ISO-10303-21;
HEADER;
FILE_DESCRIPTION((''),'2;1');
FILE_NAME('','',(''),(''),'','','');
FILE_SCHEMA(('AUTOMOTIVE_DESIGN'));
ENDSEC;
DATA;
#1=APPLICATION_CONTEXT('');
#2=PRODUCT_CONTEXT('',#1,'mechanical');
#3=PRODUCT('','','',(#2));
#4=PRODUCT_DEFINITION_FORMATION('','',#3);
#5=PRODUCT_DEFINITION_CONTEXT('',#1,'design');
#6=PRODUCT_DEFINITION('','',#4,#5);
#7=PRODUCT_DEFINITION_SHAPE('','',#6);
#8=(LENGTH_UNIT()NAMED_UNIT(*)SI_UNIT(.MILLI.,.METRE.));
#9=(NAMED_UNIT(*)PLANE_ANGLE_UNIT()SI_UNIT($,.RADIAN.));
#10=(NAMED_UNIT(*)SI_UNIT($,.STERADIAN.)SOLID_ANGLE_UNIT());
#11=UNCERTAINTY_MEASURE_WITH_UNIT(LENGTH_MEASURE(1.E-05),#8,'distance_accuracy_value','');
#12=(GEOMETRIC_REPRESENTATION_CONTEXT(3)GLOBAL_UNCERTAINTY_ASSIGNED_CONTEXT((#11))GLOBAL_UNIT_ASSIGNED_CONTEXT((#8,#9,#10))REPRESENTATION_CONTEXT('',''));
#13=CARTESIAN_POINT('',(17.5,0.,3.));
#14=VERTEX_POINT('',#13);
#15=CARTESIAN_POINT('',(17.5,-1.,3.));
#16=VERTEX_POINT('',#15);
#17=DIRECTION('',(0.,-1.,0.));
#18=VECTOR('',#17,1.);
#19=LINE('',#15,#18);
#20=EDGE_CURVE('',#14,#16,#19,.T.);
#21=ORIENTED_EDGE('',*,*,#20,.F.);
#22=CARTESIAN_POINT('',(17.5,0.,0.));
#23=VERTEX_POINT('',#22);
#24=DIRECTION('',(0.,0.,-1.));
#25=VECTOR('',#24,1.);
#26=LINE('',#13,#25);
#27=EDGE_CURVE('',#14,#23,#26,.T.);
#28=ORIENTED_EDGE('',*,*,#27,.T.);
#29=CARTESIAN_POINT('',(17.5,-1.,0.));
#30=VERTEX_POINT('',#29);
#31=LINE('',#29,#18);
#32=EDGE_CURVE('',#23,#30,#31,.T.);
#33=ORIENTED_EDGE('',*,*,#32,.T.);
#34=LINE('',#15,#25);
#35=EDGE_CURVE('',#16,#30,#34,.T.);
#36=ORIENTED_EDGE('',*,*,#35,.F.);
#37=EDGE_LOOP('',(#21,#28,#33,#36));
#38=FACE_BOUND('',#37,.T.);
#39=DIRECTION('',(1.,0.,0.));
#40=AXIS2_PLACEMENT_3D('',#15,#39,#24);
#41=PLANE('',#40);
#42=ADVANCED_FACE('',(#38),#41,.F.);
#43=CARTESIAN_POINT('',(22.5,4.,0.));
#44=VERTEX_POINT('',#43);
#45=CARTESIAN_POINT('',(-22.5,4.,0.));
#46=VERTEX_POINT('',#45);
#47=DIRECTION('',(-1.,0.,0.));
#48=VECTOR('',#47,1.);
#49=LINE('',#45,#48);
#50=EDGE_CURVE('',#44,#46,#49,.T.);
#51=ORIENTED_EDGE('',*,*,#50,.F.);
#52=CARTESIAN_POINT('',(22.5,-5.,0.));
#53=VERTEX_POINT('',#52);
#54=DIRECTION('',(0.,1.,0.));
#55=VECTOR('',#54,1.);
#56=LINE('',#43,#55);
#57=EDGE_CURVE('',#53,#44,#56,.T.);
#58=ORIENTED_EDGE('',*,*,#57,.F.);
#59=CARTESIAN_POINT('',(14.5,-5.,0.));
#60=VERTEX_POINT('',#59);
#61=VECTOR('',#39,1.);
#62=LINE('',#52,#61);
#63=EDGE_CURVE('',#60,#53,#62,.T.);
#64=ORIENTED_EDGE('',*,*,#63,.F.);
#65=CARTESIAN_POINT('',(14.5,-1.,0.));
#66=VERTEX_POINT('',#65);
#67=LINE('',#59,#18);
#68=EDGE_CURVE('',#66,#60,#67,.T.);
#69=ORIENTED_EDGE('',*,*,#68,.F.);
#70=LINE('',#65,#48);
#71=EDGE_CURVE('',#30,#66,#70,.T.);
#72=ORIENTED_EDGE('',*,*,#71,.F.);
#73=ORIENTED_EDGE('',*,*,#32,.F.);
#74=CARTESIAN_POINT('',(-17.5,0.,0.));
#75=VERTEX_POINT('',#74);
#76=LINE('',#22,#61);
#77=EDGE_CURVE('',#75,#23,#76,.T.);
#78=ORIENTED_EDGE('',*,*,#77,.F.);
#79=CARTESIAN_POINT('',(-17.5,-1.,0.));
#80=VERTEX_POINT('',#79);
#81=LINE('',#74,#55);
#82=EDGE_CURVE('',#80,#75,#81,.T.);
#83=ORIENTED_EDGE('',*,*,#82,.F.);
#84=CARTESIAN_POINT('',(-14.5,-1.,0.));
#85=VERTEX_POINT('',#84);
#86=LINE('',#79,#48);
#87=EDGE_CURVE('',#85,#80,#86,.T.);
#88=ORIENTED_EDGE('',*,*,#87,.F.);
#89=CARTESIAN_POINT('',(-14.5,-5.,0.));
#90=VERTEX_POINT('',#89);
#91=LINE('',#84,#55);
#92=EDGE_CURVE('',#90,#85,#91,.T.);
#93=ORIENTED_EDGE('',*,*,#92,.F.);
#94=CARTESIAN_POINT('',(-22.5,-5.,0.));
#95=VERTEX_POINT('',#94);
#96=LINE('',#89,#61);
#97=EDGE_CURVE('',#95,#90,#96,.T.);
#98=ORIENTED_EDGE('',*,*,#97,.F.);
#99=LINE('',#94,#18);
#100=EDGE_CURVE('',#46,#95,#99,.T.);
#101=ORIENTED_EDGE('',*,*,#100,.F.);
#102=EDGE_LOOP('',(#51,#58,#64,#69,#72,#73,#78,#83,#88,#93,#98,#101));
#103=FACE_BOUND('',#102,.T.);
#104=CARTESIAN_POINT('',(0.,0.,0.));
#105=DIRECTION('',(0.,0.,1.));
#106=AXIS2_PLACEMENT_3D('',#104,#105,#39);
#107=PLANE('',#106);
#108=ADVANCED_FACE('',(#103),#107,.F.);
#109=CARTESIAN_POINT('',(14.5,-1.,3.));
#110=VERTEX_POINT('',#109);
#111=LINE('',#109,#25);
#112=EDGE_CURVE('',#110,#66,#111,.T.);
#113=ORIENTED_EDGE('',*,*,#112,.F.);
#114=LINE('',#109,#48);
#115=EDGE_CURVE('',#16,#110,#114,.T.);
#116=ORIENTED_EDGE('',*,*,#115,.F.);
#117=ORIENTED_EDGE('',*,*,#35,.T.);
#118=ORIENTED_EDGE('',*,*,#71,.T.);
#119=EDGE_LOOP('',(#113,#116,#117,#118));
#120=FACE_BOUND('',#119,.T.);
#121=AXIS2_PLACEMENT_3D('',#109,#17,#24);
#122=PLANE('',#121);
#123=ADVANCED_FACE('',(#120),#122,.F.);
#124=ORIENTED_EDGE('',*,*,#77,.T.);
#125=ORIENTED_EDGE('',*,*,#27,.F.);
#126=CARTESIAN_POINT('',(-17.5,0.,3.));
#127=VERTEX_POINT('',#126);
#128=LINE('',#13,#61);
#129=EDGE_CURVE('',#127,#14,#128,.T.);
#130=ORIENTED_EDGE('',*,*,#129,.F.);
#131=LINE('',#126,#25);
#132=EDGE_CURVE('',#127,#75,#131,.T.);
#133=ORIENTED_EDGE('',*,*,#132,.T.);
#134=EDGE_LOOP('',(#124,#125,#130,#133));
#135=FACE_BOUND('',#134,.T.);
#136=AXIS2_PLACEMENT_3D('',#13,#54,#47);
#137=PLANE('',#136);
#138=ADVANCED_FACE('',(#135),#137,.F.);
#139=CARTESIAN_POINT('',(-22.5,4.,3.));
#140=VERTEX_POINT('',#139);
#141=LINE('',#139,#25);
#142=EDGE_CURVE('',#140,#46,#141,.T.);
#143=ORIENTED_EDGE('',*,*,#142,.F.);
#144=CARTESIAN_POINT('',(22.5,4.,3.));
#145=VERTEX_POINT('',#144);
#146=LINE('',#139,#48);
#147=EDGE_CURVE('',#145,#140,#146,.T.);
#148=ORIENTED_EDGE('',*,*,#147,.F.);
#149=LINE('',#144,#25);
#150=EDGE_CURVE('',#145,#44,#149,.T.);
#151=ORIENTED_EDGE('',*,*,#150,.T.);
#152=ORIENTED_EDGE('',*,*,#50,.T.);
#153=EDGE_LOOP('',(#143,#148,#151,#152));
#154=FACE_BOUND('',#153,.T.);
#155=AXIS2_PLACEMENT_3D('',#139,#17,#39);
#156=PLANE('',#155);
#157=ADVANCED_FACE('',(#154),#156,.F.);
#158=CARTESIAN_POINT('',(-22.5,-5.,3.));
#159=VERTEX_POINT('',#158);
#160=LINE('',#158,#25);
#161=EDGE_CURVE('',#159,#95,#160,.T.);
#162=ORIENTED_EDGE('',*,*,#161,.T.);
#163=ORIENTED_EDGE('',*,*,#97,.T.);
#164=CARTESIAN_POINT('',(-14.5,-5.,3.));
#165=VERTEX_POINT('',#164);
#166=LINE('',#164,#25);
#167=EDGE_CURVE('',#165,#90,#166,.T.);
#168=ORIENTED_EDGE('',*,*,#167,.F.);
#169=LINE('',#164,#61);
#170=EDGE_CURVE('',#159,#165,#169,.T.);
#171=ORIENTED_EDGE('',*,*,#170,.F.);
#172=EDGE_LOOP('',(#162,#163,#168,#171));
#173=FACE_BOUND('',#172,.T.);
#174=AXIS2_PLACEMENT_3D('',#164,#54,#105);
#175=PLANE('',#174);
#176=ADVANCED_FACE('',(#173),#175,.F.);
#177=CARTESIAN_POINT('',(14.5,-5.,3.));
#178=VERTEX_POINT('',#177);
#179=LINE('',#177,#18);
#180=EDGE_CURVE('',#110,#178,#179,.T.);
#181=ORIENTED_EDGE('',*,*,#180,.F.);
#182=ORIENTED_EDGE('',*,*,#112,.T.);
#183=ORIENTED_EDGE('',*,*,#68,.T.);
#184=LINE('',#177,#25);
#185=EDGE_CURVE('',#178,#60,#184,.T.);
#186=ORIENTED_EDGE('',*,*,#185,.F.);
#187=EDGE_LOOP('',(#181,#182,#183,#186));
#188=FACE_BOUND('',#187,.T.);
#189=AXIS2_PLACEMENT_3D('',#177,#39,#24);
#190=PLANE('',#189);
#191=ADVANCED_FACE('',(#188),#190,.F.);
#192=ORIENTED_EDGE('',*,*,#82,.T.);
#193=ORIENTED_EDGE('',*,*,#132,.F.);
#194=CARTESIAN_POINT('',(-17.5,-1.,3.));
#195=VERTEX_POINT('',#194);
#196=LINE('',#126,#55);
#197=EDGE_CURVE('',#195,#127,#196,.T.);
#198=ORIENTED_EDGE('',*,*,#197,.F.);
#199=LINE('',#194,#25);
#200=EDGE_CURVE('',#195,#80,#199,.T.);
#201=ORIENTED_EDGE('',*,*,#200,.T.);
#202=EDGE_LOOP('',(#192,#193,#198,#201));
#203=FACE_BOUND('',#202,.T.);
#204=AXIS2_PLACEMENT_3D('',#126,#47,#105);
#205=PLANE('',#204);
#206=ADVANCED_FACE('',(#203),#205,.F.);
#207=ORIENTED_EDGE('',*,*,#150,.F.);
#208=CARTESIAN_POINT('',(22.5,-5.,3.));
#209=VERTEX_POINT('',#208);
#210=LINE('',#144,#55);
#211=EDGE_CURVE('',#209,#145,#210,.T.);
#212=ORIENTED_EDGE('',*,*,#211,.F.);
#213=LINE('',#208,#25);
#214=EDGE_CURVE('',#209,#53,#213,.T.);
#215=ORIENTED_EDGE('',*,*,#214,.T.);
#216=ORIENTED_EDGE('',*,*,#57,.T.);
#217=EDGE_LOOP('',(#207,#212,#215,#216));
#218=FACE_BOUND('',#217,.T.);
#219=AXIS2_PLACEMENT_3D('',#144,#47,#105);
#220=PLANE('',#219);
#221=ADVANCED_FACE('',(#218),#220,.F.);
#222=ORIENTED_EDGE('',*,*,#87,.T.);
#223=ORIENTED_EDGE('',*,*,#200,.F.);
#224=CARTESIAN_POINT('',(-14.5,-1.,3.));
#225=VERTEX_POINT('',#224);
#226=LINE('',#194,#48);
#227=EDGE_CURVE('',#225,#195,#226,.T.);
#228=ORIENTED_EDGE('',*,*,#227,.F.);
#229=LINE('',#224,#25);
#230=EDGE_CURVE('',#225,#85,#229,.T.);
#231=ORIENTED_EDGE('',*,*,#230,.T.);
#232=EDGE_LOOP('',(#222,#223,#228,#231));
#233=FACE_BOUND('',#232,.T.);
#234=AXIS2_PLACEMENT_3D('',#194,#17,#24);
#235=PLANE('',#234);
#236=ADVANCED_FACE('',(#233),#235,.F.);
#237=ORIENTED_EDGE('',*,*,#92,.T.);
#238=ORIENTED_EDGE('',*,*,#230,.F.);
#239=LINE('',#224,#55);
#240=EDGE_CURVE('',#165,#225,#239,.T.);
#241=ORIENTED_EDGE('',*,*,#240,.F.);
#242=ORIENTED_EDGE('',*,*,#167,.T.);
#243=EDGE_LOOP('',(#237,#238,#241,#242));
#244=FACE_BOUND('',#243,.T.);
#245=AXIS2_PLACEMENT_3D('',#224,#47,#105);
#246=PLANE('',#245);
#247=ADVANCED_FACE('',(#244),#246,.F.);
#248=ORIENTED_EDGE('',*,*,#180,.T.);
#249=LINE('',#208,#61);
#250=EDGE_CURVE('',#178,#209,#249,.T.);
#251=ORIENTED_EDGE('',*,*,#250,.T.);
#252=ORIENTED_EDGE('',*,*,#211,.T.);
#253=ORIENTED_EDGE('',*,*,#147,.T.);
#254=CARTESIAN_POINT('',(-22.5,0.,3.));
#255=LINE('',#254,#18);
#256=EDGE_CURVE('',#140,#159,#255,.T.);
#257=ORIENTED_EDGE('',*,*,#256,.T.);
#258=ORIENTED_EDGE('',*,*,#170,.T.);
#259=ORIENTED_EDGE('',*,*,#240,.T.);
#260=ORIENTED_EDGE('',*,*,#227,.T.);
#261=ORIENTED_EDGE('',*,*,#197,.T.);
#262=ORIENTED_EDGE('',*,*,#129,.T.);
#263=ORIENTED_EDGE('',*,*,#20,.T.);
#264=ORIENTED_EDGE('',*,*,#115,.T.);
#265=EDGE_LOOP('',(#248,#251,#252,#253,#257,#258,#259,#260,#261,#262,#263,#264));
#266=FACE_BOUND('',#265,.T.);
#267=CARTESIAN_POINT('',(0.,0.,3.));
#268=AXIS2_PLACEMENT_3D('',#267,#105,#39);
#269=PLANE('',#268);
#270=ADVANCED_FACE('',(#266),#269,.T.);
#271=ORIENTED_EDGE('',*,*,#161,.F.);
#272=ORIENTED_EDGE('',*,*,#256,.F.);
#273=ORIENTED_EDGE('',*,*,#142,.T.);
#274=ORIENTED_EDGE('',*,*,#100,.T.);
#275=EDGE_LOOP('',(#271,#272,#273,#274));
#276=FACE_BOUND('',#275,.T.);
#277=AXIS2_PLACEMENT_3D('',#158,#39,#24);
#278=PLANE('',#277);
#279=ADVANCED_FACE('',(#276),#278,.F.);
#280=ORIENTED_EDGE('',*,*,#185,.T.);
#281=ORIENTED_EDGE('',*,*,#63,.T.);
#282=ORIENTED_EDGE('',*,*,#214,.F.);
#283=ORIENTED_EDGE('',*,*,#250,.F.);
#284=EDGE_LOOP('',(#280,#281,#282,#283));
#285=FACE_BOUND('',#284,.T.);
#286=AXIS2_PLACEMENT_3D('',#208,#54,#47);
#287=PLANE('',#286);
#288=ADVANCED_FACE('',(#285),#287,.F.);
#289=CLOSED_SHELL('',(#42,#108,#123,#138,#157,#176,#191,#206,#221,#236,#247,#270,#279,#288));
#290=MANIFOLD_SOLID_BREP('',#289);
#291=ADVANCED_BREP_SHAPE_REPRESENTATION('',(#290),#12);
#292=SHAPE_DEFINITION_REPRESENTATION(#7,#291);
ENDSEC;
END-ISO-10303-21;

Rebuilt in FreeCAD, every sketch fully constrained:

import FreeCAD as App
import Part
import Sketcher

doc = App.newDocument("Part")
body = doc.addObject("PartDesign::Body", "Body")

# Sketch on XY plane
sketch1 = body.newObject("Sketcher::SketchObject", "Sketch")
sketch1.AttachmentSupport = (doc.getObject("XY_Plane"), [""])
sketch1.MapMode = "FlatFace"
sketch1.addGeometry(Part.LineSegment(App.Vector(-17.5, -1, 0), App.Vector(-17.5, 0, 0)), False)
sketch1.addGeometry(Part.LineSegment(App.Vector(-17.5, 0, 0), App.Vector(17.5, 0, 0)), False)
sketch1.addGeometry(Part.LineSegment(App.Vector(17.5, 0, 0), App.Vector(17.5, -1, 0)), False)
sketch1.addGeometry(Part.LineSegment(App.Vector(17.5, -1, 0), App.Vector(14.5, -1, 0)), False)
sketch1.addGeometry(Part.LineSegment(App.Vector(14.5, -1, 0), App.Vector(14.5, -5, 0)), False)
sketch1.addGeometry(Part.LineSegment(App.Vector(14.5, -5, 0), App.Vector(22.5, -5, 0)), False)
sketch1.addGeometry(Part.LineSegment(App.Vector(22.5, -5, 0), App.Vector(22.5, 4, 0)), False)
sketch1.addGeometry(Part.LineSegment(App.Vector(22.5, 4, 0), App.Vector(-22.5, 4, 0)), False)
sketch1.addGeometry(Part.LineSegment(App.Vector(-22.5, 4, 0), App.Vector(-22.5, -5, 0)), False)
sketch1.addGeometry(Part.LineSegment(App.Vector(-22.5, -5, 0), App.Vector(-14.5, -5, 0)), False)
sketch1.addGeometry(Part.LineSegment(App.Vector(-14.5, -5, 0), App.Vector(-14.5, -1, 0)), False)
sketch1.addGeometry(Part.LineSegment(App.Vector(-14.5, -1, 0), App.Vector(-17.5, -1, 0)), False)
sketch1.addConstraint(Sketcher.Constraint("Coincident", 0, 2, 1, 1))
sketch1.addConstraint(Sketcher.Constraint("Coincident", 1, 2, 2, 1))
sketch1.addConstraint(Sketcher.Constraint("Coincident", 2, 2, 3, 1))
sketch1.addConstraint(Sketcher.Constraint("Coincident", 3, 2, 4, 1))
sketch1.addConstraint(Sketcher.Constraint("Coincident", 4, 2, 5, 1))
sketch1.addConstraint(Sketcher.Constraint("Coincident", 5, 2, 6, 1))
sketch1.addConstraint(Sketcher.Constraint("Coincident", 6, 2, 7, 1))
sketch1.addConstraint(Sketcher.Constraint("Coincident", 7, 2, 8, 1))
sketch1.addConstraint(Sketcher.Constraint("Coincident", 8, 2, 9, 1))
sketch1.addConstraint(Sketcher.Constraint("Coincident", 9, 2, 10, 1))
sketch1.addConstraint(Sketcher.Constraint("Coincident", 10, 2, 11, 1))
sketch1.addConstraint(Sketcher.Constraint("Coincident", 11, 2, 0, 1))
sketch1.addConstraint(Sketcher.Constraint("Vertical", 0))
sketch1.addConstraint(Sketcher.Constraint("Horizontal", 1))
sketch1.addConstraint(Sketcher.Constraint("Vertical", 2))
sketch1.addConstraint(Sketcher.Constraint("Horizontal", 3))
sketch1.addConstraint(Sketcher.Constraint("Vertical", 4))
sketch1.addConstraint(Sketcher.Constraint("Horizontal", 5))
sketch1.addConstraint(Sketcher.Constraint("Vertical", 6))
sketch1.addConstraint(Sketcher.Constraint("Horizontal", 7))
sketch1.addConstraint(Sketcher.Constraint("Vertical", 8))
sketch1.addConstraint(Sketcher.Constraint("Horizontal", 9))
sketch1.addConstraint(Sketcher.Constraint("Vertical", 10))
sketch1.addConstraint(Sketcher.Constraint("Horizontal", 11))
sketch1.addConstraint(Sketcher.Constraint("Symmetric", 0, 2, 1, 2, -1, 1))
sketch1.addConstraint(Sketcher.Constraint("Symmetric", 5, 2, 8, 2, -2))
sketch1.addConstraint(Sketcher.Constraint("Symmetric", 3, 2, 10, 2, -2))
sketch1.addConstraint(Sketcher.Constraint("DistanceX", 1, 1, 1, 2, 35.0))
sketch1.addConstraint(Sketcher.Constraint("DistanceX", 3, 2, 3, 1, 3.0))
sketch1.addConstraint(Sketcher.Constraint("DistanceX", 5, 1, 5, 2, 8.0))
sketch1.addConstraint(Sketcher.Constraint("DistanceY", 0, 1, 0, 2, 1.0))
sketch1.addConstraint(Sketcher.Constraint("DistanceY", 4, 2, 4, 1, 4.0))
sketch1.addConstraint(Sketcher.Constraint("DistanceY", 6, 1, 6, 2, 9.0))
pad1 = body.newObject("PartDesign::Pad", "Pad")
pad1.Profile = sketch1
pad1.Length = 3

doc.recompute()
